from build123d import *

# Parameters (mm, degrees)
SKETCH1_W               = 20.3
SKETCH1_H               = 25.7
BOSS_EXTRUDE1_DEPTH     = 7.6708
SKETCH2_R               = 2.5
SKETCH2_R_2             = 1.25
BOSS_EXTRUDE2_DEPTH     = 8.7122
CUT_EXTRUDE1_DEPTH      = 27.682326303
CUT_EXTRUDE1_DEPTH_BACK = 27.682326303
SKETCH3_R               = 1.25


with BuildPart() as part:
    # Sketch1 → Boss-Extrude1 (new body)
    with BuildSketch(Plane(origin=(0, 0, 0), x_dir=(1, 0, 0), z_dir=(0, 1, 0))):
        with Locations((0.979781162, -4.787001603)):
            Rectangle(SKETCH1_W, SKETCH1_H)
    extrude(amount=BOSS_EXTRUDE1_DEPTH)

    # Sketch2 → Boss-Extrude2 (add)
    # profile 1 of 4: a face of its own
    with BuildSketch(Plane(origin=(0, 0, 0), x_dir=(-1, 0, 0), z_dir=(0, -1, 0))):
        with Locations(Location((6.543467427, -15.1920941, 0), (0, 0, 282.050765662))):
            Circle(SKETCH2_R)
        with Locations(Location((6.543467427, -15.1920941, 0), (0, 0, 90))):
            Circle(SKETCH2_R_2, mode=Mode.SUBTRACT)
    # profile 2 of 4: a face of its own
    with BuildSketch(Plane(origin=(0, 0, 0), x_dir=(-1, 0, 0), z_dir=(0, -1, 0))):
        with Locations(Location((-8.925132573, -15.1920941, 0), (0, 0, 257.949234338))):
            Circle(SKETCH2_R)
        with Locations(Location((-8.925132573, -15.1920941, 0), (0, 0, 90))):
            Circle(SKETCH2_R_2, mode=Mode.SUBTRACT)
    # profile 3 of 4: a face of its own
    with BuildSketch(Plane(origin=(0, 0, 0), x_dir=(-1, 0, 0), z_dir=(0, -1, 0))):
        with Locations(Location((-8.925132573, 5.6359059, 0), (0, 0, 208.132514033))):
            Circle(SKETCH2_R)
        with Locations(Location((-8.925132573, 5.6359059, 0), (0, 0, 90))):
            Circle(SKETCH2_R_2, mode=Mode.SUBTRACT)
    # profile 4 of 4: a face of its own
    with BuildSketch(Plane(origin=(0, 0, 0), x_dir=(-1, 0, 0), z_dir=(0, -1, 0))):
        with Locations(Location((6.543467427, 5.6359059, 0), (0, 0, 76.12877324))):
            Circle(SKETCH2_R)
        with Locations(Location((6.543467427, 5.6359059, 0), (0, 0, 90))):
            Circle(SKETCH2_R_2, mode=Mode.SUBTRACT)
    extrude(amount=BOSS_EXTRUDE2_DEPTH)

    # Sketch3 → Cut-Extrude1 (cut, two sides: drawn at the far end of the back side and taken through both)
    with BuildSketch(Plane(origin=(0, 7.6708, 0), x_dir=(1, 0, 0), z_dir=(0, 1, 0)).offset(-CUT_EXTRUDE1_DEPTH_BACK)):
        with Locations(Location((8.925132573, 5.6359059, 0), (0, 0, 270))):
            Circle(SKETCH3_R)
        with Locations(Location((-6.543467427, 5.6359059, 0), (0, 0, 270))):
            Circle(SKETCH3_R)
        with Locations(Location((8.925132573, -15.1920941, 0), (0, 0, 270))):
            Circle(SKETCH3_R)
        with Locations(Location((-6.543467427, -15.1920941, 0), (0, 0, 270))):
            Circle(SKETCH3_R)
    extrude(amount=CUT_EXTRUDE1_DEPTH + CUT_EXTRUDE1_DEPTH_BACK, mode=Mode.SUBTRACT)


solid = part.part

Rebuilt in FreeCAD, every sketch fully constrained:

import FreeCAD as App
import Part
import Sketcher
from FreeCAD import Vector

doc = App.newDocument("Part")
body = doc.addObject("PartDesign::Body", "Body")

# Sketch on XZ plane
sketch1 = body.newObject("Sketcher::SketchObject", "Sketch")
sketch1.AttachmentSupport = (doc.getObject("XZ_Plane"), [""])
sketch1.MapMode = "FlatFace"
sketch1.addGeometry(Part.LineSegment(Vector(-9.170219, -8.062998, 0), Vector(-9.170219, 17.637002, 0)), False)
sketch1.addGeometry(Part.LineSegment(Vector(-9.170219, 17.637002, 0), Vector(11.129781, 17.637002, 0)), False)
sketch1.addGeometry(Part.LineSegment(Vector(11.129781, 17.637002, 0), Vector(11.129781, -8.062998, 0)), False)
sketch1.addGeometry(Part.LineSegment(Vector(11.129781, -8.062998, 0), Vector(-9.170219, -8.062998, 0)), False)
sketch1.addConstraint(Sketcher.Constraint("Coincident", 0, 2, 1, 1))
sketch1.addConstraint(Sketcher.Constraint("Coincident", 1, 2, 2, 1))
sketch1.addConstraint(Sketcher.Constraint("Coincident", 2, 2, 3, 1))
sketch1.addConstraint(Sketcher.Constraint("Coincident", 3, 2, 0, 1))
sketch1.addConstraint(Sketcher.Constraint("Vertical", 0))
sketch1.addConstraint(Sketcher.Constraint("Horizontal", 1))
sketch1.addConstraint(Sketcher.Constraint("Vertical", 2))
sketch1.addConstraint(Sketcher.Constraint("Horizontal", 3))
sketch1.addConstraint(Sketcher.Constraint("DistanceX", 1, 1, 1, 2, 20.3))
sketch1.addConstraint(Sketcher.Constraint("DistanceY", 0, 1, 0, 2, 25.7))
sketch1.addConstraint(Sketcher.Constraint("DistanceY", -1, 1, 0, 2, 17.637002))
sketch1.addConstraint(Sketcher.Constraint("DistanceX", 0, 2, -1, 1, 9.170219))
pad1 = body.newObject("PartDesign::Pad", "Pad")
pad1.Profile = sketch1
pad1.Length = 7.6708
pad1.Reversed = True

# Sketch on XZ plane
sketch2 = body.newObject("Sketcher::SketchObject", "Sketch001")
sketch2.AttachmentSupport = (doc.getObject("XZ_Plane"), [""])
sketch2.MapMode = "FlatFace"
sketch2.addGeometry(Part.Circle(Vector(-6.543467, 15.192094, 0), Vector(0, 0, 1), 2.5), False)
sketch2.addGeometry(Part.Circle(Vector(-6.543467, 15.192094, 0), Vector(0, 0, 1), 1.25), False)
sketch2.addGeometry(Part.Circle(Vector(8.925133, 15.192094, 0), Vector(0, 0, 1), 2.5), False)
sketch2.addGeometry(Part.Circle(Vector(8.925133, 15.192094, 0), Vector(0, 0, 1), 1.25), False)
sketch2.addGeometry(Part.Circle(Vector(8.925133, -5.635906, 0), Vector(0, 0, 1), 2.5), False)
sketch2.addGeometry(Part.Circle(Vector(8.925133, -5.635906, 0), Vector(0, 0, 1), 1.25), False)
sketch2.addGeometry(Part.Circle(Vector(-6.543467, -5.635906, 0), Vector(0, 0, 1), 2.5), False)
sketch2.addGeometry(Part.Circle(Vector(-6.543467, -5.635906, 0), Vector(0, 0, 1), 1.25), False)
sketch2.addConstraint(Sketcher.Constraint("Coincident", 1, 3, 0, 3))
sketch2.addConstraint(Sketcher.Constraint("Coincident", 3, 3, 2, 3))
sketch2.addConstraint(Sketcher.Constraint("Coincident", 5, 3, 4, 3))
sketch2.addConstraint(Sketcher.Constraint("Coincident", 7, 3, 6, 3))
sketch2.addConstraint(Sketcher.Constraint("Equal", 0, 2))
sketch2.addConstraint(Sketcher.Constraint("Equal", 1, 3))
sketch2.addConstraint(Sketcher.Constraint("Equal", 2, 4))
sketch2.addConstraint(Sketcher.Constraint("Equal", 3, 5))
sketch2.addConstraint(Sketcher.Constraint("Equal", 4, 6))
sketch2.addConstraint(Sketcher.Constraint("Equal", 5, 7))
sketch2.addConstraint(Sketcher.Constraint("Horizontal", 1, 3, 2, 3))
sketch2.addConstraint(Sketcher.Constraint("Horizontal", 5, 3, 6, 3))
sketch2.addConstraint(Sketcher.Constraint("Vertical", 3, 3, 4, 3))
sketch2.addConstraint(Sketcher.Constraint("Vertical", 1, 3, 6, 3))
sketch2.addConstraint(Sketcher.Constraint("Diameter", 0, 5.0))
sketch2.addConstraint(Sketcher.Constraint("Diameter", 1, 2.5))
sketch2.addConstraint(Sketcher.Constraint("DistanceY", 4, 3, 2, 3, 20.828))
sketch2.addConstraint(Sketcher.Constraint("DistanceX", 0, 3, 2, 3, 15.4686))
sketch2.addConstraint(Sketcher.Constraint("DistanceX", 0, 3, -1, 1, 6.543467))
sketch2.addConstraint(Sketcher.Constraint("DistanceY", -1, 1, 0, 3, 15.192094))
pad2 = body.newObject("PartDesign::Pad", "Pad001")
pad2.Profile = sketch2
pad2.Length = 8.7122

# Sketch on XZ plane
sketch3 = body.newObject("Sketcher::SketchObject", "Sketch002")
sketch3.AttachmentSupport = (doc.getObject("XZ_Plane"), [""])
sketch3.MapMode = "FlatFace"
sketch3.AttachmentOffset = App.Placement(Vector(0, 0, -7.6708), App.Rotation())
sketch3.addGeometry(Part.Circle(Vector(8.925133, -5.635906, 0), Vector(0, 0, 1), 1.25), False)
sketch3.addGeometry(Part.Circle(Vector(-6.543467, -5.635906, 0), Vector(0, 0, 1), 1.25), False)
sketch3.addGeometry(Part.Circle(Vector(8.925133, 15.192094, 0), Vector(0, 0, 1), 1.25), False)
sketch3.addGeometry(Part.Circle(Vector(-6.543467, 15.192094, 0), Vector(0, 0, 1), 1.25), False)
sketch3.addConstraint(Sketcher.Constraint("Equal", 0, 1))
sketch3.addConstraint(Sketcher.Constraint("Equal", 1, 2))
sketch3.addConstraint(Sketcher.Constraint("Equal", 2, 3))
sketch3.addConstraint(Sketcher.Constraint("Horizontal", 0, 3, 1, 3))
sketch3.addConstraint(Sketcher.Constraint("Horizontal", 2, 3, 3, 3))
sketch3.addConstraint(Sketcher.Constraint("Vertical", 0, 3, 2, 3))
sketch3.addConstraint(Sketcher.Constraint("Vertical", 1, 3, 3, 3))
sketch3.addConstraint(Sketcher.Constraint("Diameter", 0, 2.5))
sketch3.addConstraint(Sketcher.Constraint("DistanceY", 0, 3, 2, 3, 20.828))
sketch3.addConstraint(Sketcher.Constraint("DistanceX", 1, 3, 0, 3, 15.4686))
sketch3.addConstraint(Sketcher.Constraint("DistanceX", -1, 1, 0, 3, 8.925133))
sketch3.addConstraint(Sketcher.Constraint("DistanceY", 0, 3, -1, 1, 5.635906))
pocket1 = body.newObject("PartDesign::Pocket", "Pocket")
pocket1.Profile = sketch3
pocket1.Type = "ThroughAll"
pocket1.Midplane = True

doc.recompute()
